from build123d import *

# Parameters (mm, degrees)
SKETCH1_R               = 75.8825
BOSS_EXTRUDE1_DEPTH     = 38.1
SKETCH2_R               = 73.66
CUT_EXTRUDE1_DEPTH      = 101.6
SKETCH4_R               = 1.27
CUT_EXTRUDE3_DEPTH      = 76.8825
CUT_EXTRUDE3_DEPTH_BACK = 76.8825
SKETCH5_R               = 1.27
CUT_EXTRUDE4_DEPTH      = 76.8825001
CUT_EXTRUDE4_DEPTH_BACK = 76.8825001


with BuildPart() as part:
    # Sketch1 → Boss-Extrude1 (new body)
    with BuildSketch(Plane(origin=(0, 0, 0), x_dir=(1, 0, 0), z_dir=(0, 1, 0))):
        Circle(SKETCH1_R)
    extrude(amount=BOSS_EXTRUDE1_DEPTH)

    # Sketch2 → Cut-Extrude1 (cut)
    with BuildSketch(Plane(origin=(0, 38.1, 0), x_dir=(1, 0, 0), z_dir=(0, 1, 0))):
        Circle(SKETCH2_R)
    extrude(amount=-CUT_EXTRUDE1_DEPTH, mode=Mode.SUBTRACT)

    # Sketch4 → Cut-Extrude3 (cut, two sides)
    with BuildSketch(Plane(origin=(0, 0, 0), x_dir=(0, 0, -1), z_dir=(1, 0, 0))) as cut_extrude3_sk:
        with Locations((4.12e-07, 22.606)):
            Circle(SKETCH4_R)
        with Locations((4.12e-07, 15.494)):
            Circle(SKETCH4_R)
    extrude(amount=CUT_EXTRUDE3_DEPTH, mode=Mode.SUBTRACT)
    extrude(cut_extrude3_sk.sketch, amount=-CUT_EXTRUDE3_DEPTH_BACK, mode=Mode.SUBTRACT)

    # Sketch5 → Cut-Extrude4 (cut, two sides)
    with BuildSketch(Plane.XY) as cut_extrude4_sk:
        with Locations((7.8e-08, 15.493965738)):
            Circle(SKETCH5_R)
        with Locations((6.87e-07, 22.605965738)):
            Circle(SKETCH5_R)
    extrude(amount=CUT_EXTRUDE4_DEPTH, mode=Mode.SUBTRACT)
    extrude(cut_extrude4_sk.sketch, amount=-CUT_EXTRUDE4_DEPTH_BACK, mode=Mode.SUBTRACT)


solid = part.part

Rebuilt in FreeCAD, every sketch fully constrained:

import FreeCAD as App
import Part
import Sketcher
Q = App.Units.Quantity

doc = App.newDocument("Part")
body = doc.addObject("PartDesign::Body", "Body")

# Sketch on XZ plane
sketch1 = body.newObject("Sketcher::SketchObject", "Sketch")
sketch1.AttachmentSupport = (doc.getObject("XZ_Plane"), [""])
sketch1.MapMode = "FlatFace"
sketch1.addGeometry(Part.Circle(App.Vector(0, 0, 0), App.Vector(0, 0, 1), 75.8825), False)
sketch1.addConstraint([
    Sketcher.Constraint("Coincident", 0, 3, -1, 1),
    Sketcher.Constraint("Diameter", 0, Q("5.975 in")),
])
pad1 = body.newObject("PartDesign::Pad", "Pad")
pad1.Profile = sketch1
pad1.Length = Q("1.5 in")
pad1.Reversed = True

# Sketch on XZ plane
sketch2 = body.newObject("Sketcher::SketchObject", "Sketch001")
sketch2.AttachmentSupport = (doc.getObject("XZ_Plane"), [""])
sketch2.MapMode = "FlatFace"
sketch2.AttachmentOffset = App.Placement(App.Vector(0, 0, -1.5 * 25.4), App.Rotation())
sketch2.addGeometry(Part.Circle(App.Vector(0, 0, 0), App.Vector(0, 0, 1), 73.66), False)
sketch2.addConstraint([
    Sketcher.Constraint("Coincident", 0, 3, -1, 1),
    Sketcher.Constraint("Diameter", 0, Q("5.8 in")),
])
pocket1 = body.newObject("PartDesign::Pocket", "Pocket")
pocket1.Profile = sketch2
pocket1.Length = Q("4 in")
pocket1.Reversed = True

# Sketch on YZ plane
sketch3 = body.newObject("Sketcher::SketchObject", "Sketch002")
sketch3.AttachmentSupport = (doc.getObject("YZ_Plane"), [""])
sketch3.MapMode = "FlatFace"
sketch3.addGeometry([
    Part.Circle(App.Vector(22.606, 0, 0), App.Vector(0, 0, 1), 1.27),
    Part.Circle(App.Vector(15.494, 0, 0), App.Vector(0, 0, 1), 1.27),
], False)
sketch3.addConstraint([
    Sketcher.Constraint("Equal", 0, 1),
    Sketcher.Constraint("PointOnObject", 0, 3, -1),
    Sketcher.Constraint("PointOnObject", 1, 3, -1),
    Sketcher.Constraint("Diameter", 0, Q("0.1 in")),
    Sketcher.Constraint("DistanceX", -1, 1, 0, 3, Q("0.89 in")),
    Sketcher.Constraint("DistanceX", -1, 1, 1, 3, Q("0.61 in")),
])
pocket2 = body.newObject("PartDesign::Pocket", "Pocket001")
pocket2.Profile = sketch3
pocket2.Type = "ThroughAll"
pocket2.Midplane = True

# Sketch on XY plane
sketch4 = body.newObject("Sketcher::SketchObject", "Sketch003")
sketch4.AttachmentSupport = (doc.getObject("XY_Plane"), [""])
sketch4.MapMode = "FlatFace"
sketch4.addGeometry([
    Part.Circle(App.Vector(0, 15.493966, 0), App.Vector(0, 0, 1), 1.27),
    Part.Circle(App.Vector(0.000001, 22.605966, 0), App.Vector(0, 0, 1), 1.27),
], False)
sketch4.addConstraint([
    Sketcher.Constraint("Equal", 0, 1),
    Sketcher.Constraint("PointOnObject", 0, 3, -2),
    Sketcher.Constraint("PointOnObject", 1, 3, -2),
    Sketcher.Constraint("Diameter", 0, Q("0.1 in")),
    Sketcher.Constraint("DistanceY", 0, 3, 1, 3, Q("0.28 in")),
    Sketcher.Constraint("DistanceY", -1, 1, 0, 3, Q("15.493966 mm")),
])
pocket3 = body.newObject("PartDesign::Pocket", "Pocket002")
pocket3.Profile = sketch4
pocket3.Type = "ThroughAll"
pocket3.Midplane = True

doc.recompute()
